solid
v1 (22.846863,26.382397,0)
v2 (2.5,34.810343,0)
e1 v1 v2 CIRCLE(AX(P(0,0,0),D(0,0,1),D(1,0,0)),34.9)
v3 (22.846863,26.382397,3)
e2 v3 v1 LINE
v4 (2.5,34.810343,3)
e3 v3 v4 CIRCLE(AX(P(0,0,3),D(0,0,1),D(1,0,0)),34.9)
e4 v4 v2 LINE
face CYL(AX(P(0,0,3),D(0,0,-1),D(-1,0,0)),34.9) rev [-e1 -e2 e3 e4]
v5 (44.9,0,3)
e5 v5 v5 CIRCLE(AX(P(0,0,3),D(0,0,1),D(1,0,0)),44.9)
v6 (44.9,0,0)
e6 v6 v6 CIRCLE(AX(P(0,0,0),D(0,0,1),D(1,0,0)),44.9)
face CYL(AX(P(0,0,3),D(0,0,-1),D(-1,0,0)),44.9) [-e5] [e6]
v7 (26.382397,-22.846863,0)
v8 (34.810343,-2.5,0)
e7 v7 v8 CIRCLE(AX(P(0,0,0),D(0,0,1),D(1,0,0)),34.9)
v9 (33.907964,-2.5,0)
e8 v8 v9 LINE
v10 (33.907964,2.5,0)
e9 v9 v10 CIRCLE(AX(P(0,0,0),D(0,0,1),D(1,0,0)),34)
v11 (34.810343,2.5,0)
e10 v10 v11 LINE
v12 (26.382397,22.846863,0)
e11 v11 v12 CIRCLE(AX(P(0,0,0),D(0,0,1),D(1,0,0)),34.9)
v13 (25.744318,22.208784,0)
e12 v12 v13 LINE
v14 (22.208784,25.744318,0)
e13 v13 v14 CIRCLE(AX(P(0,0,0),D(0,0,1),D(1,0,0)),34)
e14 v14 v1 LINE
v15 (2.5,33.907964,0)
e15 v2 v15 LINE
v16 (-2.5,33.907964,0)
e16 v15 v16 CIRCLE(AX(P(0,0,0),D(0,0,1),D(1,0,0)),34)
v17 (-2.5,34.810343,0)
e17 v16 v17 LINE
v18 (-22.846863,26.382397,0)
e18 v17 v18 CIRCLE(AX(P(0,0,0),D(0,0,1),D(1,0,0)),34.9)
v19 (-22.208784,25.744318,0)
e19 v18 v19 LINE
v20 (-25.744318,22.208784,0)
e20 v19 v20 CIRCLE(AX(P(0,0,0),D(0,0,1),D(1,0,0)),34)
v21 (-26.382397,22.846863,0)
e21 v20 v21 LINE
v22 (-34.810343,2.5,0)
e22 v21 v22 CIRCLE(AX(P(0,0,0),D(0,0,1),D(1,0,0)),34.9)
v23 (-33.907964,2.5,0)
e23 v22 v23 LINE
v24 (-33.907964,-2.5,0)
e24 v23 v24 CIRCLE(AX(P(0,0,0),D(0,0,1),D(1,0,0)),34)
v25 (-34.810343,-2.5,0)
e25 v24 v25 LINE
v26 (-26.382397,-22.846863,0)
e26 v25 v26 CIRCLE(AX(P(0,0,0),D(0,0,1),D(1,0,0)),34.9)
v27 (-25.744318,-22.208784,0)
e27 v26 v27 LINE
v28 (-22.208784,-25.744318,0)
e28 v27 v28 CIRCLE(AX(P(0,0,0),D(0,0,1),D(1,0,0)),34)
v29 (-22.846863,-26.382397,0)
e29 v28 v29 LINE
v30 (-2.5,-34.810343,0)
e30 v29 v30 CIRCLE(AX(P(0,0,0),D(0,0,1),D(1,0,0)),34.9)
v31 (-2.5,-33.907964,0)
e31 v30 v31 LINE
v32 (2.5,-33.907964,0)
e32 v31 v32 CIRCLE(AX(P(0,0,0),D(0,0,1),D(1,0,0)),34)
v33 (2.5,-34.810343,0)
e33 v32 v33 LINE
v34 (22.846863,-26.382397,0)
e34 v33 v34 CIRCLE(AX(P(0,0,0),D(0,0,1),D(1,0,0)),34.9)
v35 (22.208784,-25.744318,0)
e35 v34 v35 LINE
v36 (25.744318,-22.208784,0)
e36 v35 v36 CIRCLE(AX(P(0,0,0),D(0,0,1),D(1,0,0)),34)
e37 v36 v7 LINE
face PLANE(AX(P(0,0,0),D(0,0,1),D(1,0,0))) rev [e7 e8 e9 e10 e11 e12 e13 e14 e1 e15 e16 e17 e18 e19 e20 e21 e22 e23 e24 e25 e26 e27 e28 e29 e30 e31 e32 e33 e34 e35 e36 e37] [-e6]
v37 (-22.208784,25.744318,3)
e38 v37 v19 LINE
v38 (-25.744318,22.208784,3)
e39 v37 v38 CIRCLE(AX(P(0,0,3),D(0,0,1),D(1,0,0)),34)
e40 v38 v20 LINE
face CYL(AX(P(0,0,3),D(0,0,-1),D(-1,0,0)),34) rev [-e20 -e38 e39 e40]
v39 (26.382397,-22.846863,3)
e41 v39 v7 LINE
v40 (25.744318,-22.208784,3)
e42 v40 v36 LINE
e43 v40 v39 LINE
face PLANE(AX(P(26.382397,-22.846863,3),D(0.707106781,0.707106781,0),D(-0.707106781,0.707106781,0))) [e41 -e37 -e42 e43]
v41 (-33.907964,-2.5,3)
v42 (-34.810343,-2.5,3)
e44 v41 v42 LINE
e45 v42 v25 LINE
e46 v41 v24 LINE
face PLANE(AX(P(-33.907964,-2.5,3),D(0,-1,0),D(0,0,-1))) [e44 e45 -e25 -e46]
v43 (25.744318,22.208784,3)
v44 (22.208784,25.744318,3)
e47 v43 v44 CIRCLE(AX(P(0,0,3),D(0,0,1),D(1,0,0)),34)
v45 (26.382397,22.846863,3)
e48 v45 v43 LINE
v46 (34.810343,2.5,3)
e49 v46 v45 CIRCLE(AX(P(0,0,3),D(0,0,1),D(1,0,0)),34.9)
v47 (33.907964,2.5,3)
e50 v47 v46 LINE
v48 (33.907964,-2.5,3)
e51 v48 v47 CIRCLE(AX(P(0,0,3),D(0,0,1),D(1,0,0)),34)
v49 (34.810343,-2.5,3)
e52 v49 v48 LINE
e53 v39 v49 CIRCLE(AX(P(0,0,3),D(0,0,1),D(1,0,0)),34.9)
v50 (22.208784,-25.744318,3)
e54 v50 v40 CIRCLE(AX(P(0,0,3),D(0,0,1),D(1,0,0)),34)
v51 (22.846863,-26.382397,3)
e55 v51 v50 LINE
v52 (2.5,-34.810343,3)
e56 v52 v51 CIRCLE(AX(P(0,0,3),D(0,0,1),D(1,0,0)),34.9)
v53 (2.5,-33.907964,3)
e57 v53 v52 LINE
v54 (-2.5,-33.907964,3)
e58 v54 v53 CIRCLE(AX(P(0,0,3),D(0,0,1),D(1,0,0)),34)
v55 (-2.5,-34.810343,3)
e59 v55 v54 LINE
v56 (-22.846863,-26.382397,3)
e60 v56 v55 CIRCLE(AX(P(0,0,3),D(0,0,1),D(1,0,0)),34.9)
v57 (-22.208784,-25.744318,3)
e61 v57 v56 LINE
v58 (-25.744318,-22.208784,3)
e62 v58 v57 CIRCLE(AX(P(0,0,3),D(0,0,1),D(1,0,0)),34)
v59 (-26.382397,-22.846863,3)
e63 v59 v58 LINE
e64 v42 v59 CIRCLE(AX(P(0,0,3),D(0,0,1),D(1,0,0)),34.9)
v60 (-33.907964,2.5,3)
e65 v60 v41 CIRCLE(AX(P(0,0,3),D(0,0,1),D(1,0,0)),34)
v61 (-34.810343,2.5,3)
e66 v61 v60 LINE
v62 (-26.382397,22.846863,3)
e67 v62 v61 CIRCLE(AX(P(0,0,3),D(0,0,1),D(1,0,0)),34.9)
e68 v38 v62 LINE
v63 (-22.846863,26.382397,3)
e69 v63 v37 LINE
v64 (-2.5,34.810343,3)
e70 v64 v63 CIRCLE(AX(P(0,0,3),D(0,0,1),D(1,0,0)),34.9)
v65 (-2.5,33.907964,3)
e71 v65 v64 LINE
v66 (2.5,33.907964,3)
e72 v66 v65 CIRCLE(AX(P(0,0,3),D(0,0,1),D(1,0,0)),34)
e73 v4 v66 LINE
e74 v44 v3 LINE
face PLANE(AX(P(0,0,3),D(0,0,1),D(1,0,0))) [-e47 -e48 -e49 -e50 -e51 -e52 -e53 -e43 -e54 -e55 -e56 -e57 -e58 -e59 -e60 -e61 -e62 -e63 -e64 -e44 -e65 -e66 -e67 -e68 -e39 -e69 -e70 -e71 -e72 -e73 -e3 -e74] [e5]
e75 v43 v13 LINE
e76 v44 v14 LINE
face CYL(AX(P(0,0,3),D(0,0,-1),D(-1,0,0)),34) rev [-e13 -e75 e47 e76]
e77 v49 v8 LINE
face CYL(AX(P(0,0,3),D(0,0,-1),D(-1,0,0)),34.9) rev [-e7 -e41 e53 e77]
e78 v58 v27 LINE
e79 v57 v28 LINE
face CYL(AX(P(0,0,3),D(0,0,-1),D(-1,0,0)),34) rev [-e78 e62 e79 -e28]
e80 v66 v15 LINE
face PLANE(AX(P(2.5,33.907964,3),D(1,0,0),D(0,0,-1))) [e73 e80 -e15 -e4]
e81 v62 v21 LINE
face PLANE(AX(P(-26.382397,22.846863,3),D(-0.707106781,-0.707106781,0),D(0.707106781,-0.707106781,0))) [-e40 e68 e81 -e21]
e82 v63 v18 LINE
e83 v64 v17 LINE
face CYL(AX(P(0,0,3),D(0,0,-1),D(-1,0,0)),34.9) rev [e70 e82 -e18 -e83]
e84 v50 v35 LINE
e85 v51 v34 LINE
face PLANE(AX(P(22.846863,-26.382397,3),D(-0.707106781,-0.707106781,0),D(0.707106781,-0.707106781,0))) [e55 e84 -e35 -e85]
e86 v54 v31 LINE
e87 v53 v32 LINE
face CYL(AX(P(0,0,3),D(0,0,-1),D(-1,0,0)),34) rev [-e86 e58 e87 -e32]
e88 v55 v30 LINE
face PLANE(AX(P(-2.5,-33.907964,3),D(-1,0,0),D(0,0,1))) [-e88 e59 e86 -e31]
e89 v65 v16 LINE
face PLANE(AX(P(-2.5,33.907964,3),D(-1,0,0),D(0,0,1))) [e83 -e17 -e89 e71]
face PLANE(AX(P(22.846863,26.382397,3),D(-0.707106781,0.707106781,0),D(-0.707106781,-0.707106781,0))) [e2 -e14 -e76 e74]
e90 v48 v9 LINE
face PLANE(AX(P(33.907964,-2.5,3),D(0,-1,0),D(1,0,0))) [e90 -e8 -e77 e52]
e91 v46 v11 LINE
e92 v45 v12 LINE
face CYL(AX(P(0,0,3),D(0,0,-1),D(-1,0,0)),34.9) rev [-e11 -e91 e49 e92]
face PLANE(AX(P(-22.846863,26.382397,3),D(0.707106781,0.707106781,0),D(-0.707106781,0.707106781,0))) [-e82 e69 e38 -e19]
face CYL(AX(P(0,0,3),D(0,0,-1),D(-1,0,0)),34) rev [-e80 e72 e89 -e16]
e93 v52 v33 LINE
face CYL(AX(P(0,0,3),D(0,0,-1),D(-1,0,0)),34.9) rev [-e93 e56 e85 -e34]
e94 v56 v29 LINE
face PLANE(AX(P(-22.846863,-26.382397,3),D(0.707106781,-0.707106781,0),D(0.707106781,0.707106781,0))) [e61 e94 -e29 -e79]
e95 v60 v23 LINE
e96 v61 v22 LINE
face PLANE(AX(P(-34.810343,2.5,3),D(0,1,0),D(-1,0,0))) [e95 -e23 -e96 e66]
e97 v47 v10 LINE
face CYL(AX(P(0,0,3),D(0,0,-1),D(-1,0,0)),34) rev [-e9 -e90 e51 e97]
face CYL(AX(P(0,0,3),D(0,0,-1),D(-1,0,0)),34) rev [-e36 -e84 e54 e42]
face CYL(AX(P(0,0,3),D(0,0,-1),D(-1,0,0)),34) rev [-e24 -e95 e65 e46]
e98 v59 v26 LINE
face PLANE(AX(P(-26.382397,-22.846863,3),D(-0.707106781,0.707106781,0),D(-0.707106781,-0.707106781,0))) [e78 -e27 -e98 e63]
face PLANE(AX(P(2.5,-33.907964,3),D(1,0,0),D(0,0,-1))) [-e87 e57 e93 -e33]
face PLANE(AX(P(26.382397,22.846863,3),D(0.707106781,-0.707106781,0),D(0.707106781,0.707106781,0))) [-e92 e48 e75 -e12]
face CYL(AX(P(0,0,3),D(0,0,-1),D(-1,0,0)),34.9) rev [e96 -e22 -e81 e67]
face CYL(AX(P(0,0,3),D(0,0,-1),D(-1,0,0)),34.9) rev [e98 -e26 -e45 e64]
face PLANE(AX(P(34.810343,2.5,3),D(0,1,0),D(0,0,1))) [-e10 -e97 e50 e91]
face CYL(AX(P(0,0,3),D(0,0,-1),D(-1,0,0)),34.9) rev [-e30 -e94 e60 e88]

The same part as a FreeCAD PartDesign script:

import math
import FreeCAD as App
import Part
import Sketcher
from FreeCAD import Vector

doc = App.newDocument("Part")
body = doc.addObject("PartDesign::Body", "Body")

sketch1 = body.newObject("Sketcher::SketchObject", "Sketch")
sketch1.AttachmentSupport = (doc.getObject("XY_Plane"), [""])
sketch1.MapMode = "FlatFace"
sketch1.addGeometry(Part.Circle(Vector(0, 0, 0), Vector(0, 0, 1), 44.9), False)
sketch1.addGeometry(Part.LineSegment(Vector(-2.5, 34.810343, 0), Vector(-2.5, 33.907964, 0)), False)
sketch1.addGeometry(Part.ArcOfCircle(Part.Circle(Vector(0, 0, 0), Vector(0, 0, 1), 34), math.radians(85.78327), math.radians(94.21673)), False)
sketch1.addGeometry(Part.LineSegment(Vector(2.5, 33.907964, 0), Vector(2.5, 34.810343, 0)), False)
sketch1.addGeometry(Part.ArcOfCircle(Part.Circle(Vector(0, 0, 0), Vector(0, 0, 1), 34.9), math.radians(49.1078), math.radians(85.8922)), False)
sketch1.addGeometry(Part.LineSegment(Vector(22.846863, 26.382397, 0), Vector(22.208784, 25.744318, 0)), False)
sketch1.addGeometry(Part.ArcOfCircle(Part.Circle(Vector(0, 0, 0), Vector(0, 0, 1), 34), math.radians(40.78327), math.radians(49.21673)), False)
sketch1.addGeometry(Part.LineSegment(Vector(25.744318, 22.208784, 0), Vector(26.382397, 22.846863, 0)), False)
sketch1.addGeometry(Part.ArcOfCircle(Part.Circle(Vector(0, 0, 0), Vector(0, 0, 1), 34.9), math.radians(4.1078), math.radians(40.8922)), False)
sketch1.addGeometry(Part.LineSegment(Vector(34.810343, 2.5, 0), Vector(33.907964, 2.5, 0)), False)
sketch1.addGeometry(Part.ArcOfCircle(Part.Circle(Vector(0, 0, 0), Vector(0, 0, 1), 34), math.radians(-4.21673), math.radians(4.21673)), False)
sketch1.addGeometry(Part.LineSegment(Vector(33.907964, -2.5, 0), Vector(34.810343, -2.5, 0)), False)
sketch1.addGeometry(Part.ArcOfCircle(Part.Circle(Vector(0, 0, 0), Vector(0, 0, 1), 34.9), math.radians(-40.8922), math.radians(-4.1078)), False)
sketch1.addGeometry(Part.LineSegment(Vector(26.382397, -22.846863, 0), Vector(25.744318, -22.208784, 0)), False)
sketch1.addGeometry(Part.ArcOfCircle(Part.Circle(Vector(0, 0, 0), Vector(0, 0, 1), 34), math.radians(-49.21673), math.radians(-40.78327)), False)
sketch1.addGeometry(Part.LineSegment(Vector(22.208784, -25.744318, 0), Vector(22.846863, -26.382397, 0)), False)
sketch1.addGeometry(Part.ArcOfCircle(Part.Circle(Vector(0, 0, 0), Vector(0, 0, 1), 34.9), math.radians(-85.8922), math.radians(-49.1078)), False)
sketch1.addGeometry(Part.LineSegment(Vector(2.5, -34.810343, 0), Vector(2.5, -33.907964, 0)), False)
sketch1.addGeometry(Part.ArcOfCircle(Part.Circle(Vector(0, 0, 0), Vector(0, 0, 1), 34), math.radians(-94.21673), math.radians(-85.78327)), False)
sketch1.addGeometry(Part.LineSegment(Vector(-2.5, -33.907964, 0), Vector(-2.5, -34.810343, 0)), False)
sketch1.addGeometry(Part.ArcOfCircle(Part.Circle(Vector(0, 0, 0), Vector(0, 0, 1), 34.9), math.radians(-130.8922), math.radians(-94.1078)), False)
sketch1.addGeometry(Part.LineSegment(Vector(-22.846863, -26.382397, 0), Vector(-22.208784, -25.744318, 0)), False)
sketch1.addGeometry(Part.ArcOfCircle(Part.Circle(Vector(0, 0, 0), Vector(0, 0, 1), 34), math.radians(-139.21673), math.radians(-130.78327)), False)
sketch1.addGeometry(Part.LineSegment(Vector(-25.744318, -22.208784, 0), Vector(-26.382397, -22.846863, 0)), False)
sketch1.addGeometry(Part.ArcOfCircle(Part.Circle(Vector(0, 0, 0), Vector(0, 0, 1), 34.9), math.radians(-175.8922), math.radians(-139.1078)), False)
sketch1.addGeometry(Part.LineSegment(Vector(-34.810343, -2.5, 0), Vector(-33.907964, -2.5, 0)), False)
sketch1.addGeometry(Part.ArcOfCircle(Part.Circle(Vector(0, 0, 0), Vector(0, 0, 1), 34), math.radians(175.78327), math.radians(184.21673)), False)
sketch1.addGeometry(Part.LineSegment(Vector(-33.907964, 2.5, 0), Vector(-34.810343, 2.5, 0)), False)
sketch1.addGeometry(Part.ArcOfCircle(Part.Circle(Vector(0, 0, 0), Vector(0, 0, 1), 34.9), math.radians(139.1078), math.radians(175.8922)), False)
sketch1.addGeometry(Part.LineSegment(Vector(-26.382397, 22.846863, 0), Vector(-25.744318, 22.208784, 0)), False)
sketch1.addGeometry(Part.ArcOfCircle(Part.Circle(Vector(0, 0, 0), Vector(0, 0, 1), 34), math.radians(130.78327), math.radians(139.21673)), False)
sketch1.addGeometry(Part.LineSegment(Vector(-22.208784, 25.744318, 0), Vector(-22.846863, 26.382397, 0)), False)
sketch1.addGeometry(Part.ArcOfCircle(Part.Circle(Vector(0, 0, 0), Vector(0, 0, 1), 34.9), math.radians(94.1078), math.radians(130.8922)), False)
sketch1.addConstraint(Sketcher.Constraint("Coincident", 1, 2, 2, 2))
sketch1.addConstraint(Sketcher.Constraint("Coincident", 2, 1, 3, 1))
sketch1.addConstraint(Sketcher.Constraint("Coincident", 3, 2, 4, 2))
sketch1.addConstraint(Sketcher.Constraint("Coincident", 4, 1, 5, 1))
sketch1.addConstraint(Sketcher.Constraint("Coincident", 5, 2, 6, 2))
sketch1.addConstraint(Sketcher.Constraint("Coincident", 6, 1, 7, 1))
sketch1.addConstraint(Sketcher.Constraint("Coincident", 7, 2, 8, 2))
sketch1.addConstraint(Sketcher.Constraint("Coincident", 8, 1, 9, 1))
sketch1.addConstraint(Sketcher.Constraint("Coincident", 9, 2, 10, 2))
sketch1.addConstraint(Sketcher.Constraint("Coincident", 10, 1, 11, 1))
sketch1.addConstraint(Sketcher.Constraint("Coincident", 11, 2, 12, 2))
sketch1.addConstraint(Sketcher.Constraint("Coincident", 12, 1, 13, 1))
sketch1.addConstraint(Sketcher.Constraint("Coincident", 13, 2, 14, 2))
sketch1.addConstraint(Sketcher.Constraint("Coincident", 14, 1, 15, 1))
sketch1.addConstraint(Sketcher.Constraint("Coincident", 15, 2, 16, 2))
sketch1.addConstraint(Sketcher.Constraint("Coincident", 16, 1, 17, 1))
sketch1.addConstraint(Sketcher.Constraint("Coincident", 17, 2, 18, 2))
sketch1.addConstraint(Sketcher.Constraint("Coincident", 18, 1, 19, 1))
sketch1.addConstraint(Sketcher.Constraint("Coincident", 19, 2, 20, 2))
sketch1.addConstraint(Sketcher.Constraint("Coincident", 20, 1, 21, 1))
sketch1.addConstraint(Sketcher.Constraint("Coincident", 21, 2, 22, 2))
sketch1.addConstraint(Sketcher.Constraint("Coincident", 22, 1, 23, 1))
sketch1.addConstraint(Sketcher.Constraint("Coincident", 23, 2, 24, 2))
sketch1.addConstraint(Sketcher.Constraint("Coincident", 24, 1, 25, 1))
sketch1.addConstraint(Sketcher.Constraint("Coincident", 25, 2, 26, 2))
sketch1.addConstraint(Sketcher.Constraint("Coincident", 26, 1, 27, 1))
sketch1.addConstraint(Sketcher.Constraint("Coincident", 27, 2, 28, 2))
sketch1.addConstraint(Sketcher.Constraint("Coincident", 28, 1, 29, 1))
sketch1.addConstraint(Sketcher.Constraint("Coincident", 29, 2, 30, 2))
sketch1.addConstraint(Sketcher.Constraint("Coincident", 30, 1, 31, 1))
sketch1.addConstraint(Sketcher.Constraint("Coincident", 31, 2, 32, 2))
sketch1.addConstraint(Sketcher.Constraint("Coincident", 32, 1, 1, 1))
sketch1.addConstraint(Sketcher.Constraint("Vertical", 1))
sketch1.addConstraint(Sketcher.Constraint("Vertical", 3))
sketch1.addConstraint(Sketcher.Constraint("Horizontal", 9))
sketch1.addConstraint(Sketcher.Constraint("Horizontal", 11))
sketch1.addConstraint(Sketcher.Constraint("Vertical", 17))
sketch1.addConstraint(Sketcher.Constraint("Vertical", 19))
sketch1.addConstraint(Sketcher.Constraint("Horizontal", 25))
sketch1.addConstraint(Sketcher.Constraint("Horizontal", 27))
sketch1.addConstraint(Sketcher.Constraint("Coincident", 0, 3, -1, 1))
sketch1.addConstraint(Sketcher.Constraint("Coincident", 2, 3, -1, 1))
sketch1.addConstraint(Sketcher.Constraint("Coincident", 4, 3, -1, 1))
sketch1.addConstraint(Sketcher.Constraint("Coincident", 6, 3, -1, 1))
sketch1.addConstraint(Sketcher.Constraint("Coincident", 8, 3, -1, 1))
sketch1.addConstraint(Sketcher.Constraint("Coincident", 10, 3, -1, 1))
sketch1.addConstraint(Sketcher.Constraint("Coincident", 12, 3, -1, 1))
sketch1.addConstraint(Sketcher.Constraint("Coincident", 14, 3, -1, 1))
sketch1.addConstraint(Sketcher.Constraint("Coincident", 16, 3, -1, 1))
sketch1.addConstraint(Sketcher.Constraint("Coincident", 18, 3, -1, 1))
sketch1.addConstraint(Sketcher.Constraint("Coincident", 20, 3, -1, 1))
sketch1.addConstraint(Sketcher.Constraint("Coincident", 22, 3, -1, 1))
sketch1.addConstraint(Sketcher.Constraint("Coincident", 24, 3, -1, 1))
sketch1.addConstraint(Sketcher.Constraint("Coincident", 26, 3, -1, 1))
sketch1.addConstraint(Sketcher.Constraint("Coincident", 28, 3, -1, 1))
sketch1.addConstraint(Sketcher.Constraint("Coincident", 30, 3, -1, 1))
sketch1.addConstraint(Sketcher.Constraint("Coincident", 32, 3, -1, 1))
sketch1.addConstraint(Sketcher.Constraint("Equal", 2, 6))
sketch1.addConstraint(Sketcher.Constraint("Equal", 4, 8))
sketch1.addConstraint(Sketcher.Constraint("Equal", 6, 10))
sketch1.addConstraint(Sketcher.Constraint("Equal", 8, 12))
sketch1.addConstraint(Sketcher.Constraint("Equal", 10, 14))
sketch1.addConstraint(Sketcher.Constraint("Equal", 12, 16))
sketch1.addConstraint(Sketcher.Constraint("Equal", 14, 18))
sketch1.addConstraint(Sketcher.Constraint("Equal", 16, 20))
sketch1.addConstraint(Sketcher.Constraint("Equal", 18, 22))
sketch1.addConstraint(Sketcher.Constraint("Equal", 20, 24))
sketch1.addConstraint(Sketcher.Constraint("Equal", 22, 26))
sketch1.addConstraint(Sketcher.Constraint("Equal", 24, 28))
sketch1.addConstraint(Sketcher.Constraint("Equal", 26, 30))
sketch1.addConstraint(Sketcher.Constraint("Equal", 28, 32))
sketch1.addConstraint(Sketcher.Constraint("Parallel", 5, 7))
sketch1.addConstraint(Sketcher.Constraint("Perpendicular", 7, 13))
sketch1.addConstraint(Sketcher.Constraint("Parallel", 13, 15))
sketch1.addConstraint(Sketcher.Constraint("Perpendicular", 15, 21))
sketch1.addConstraint(Sketcher.Constraint("Parallel", 21, 23))
sketch1.addConstraint(Sketcher.Constraint("Perpendicular", 23, 29))
sketch1.addConstraint(Sketcher.Constraint("Parallel", 29, 31))
sketch1.addConstraint(Sketcher.Constraint("Horizontal", 1, 2, 2, 1))
sketch1.addConstraint(Sketcher.Constraint("Horizontal", 17, 2, 18, 1))
sketch1.addConstraint(Sketcher.Constraint("Horizontal", 15, 2, 20, 1))
sketch1.addConstraint(Sketcher.Constraint("Horizontal", 14, 1, 21, 2))
sketch1.addConstraint(Sketcher.Constraint("Horizontal", 13, 2, 22, 1))
sketch1.addConstraint(Sketcher.Constraint("Horizontal", 11, 2, 24, 1))
sketch1.addConstraint(Sketcher.Constraint("Horizontal", 9, 2, 26, 1))
sketch1.addConstraint(Sketcher.Constraint("Horizontal", 7, 2, 28, 1))
sketch1.addConstraint(Sketcher.Constraint("Horizontal", 5, 2, 30, 1))
sketch1.addConstraint(Sketcher.Constraint("Vertical", 9, 2, 10, 1))
sketch1.addConstraint(Sketcher.Constraint("Vertical", 7, 2, 12, 1))
sketch1.addConstraint(Sketcher.Constraint("Vertical", 5, 2, 14, 1))
sketch1.addConstraint(Sketcher.Constraint("Vertical", 3, 2, 16, 1))
sketch1.addConstraint(Sketcher.Constraint("Radius", 2, 34.0))
sketch1.addConstraint(Sketcher.Constraint("Diameter", 0, 89.8))
sketch1.addConstraint(Sketcher.Constraint("Radius", 4, 34.9))
sketch1.addConstraint(Sketcher.Constraint("DistanceX", 1, 2, 2, 1, 5.0))
sketch1.addConstraint(Sketcher.Constraint("DistanceY", 10, 1, 9, 2, 5.0))
sketch1.addConstraint(Sketcher.Constraint("DistanceY", 7, 2, 2, 1, 11.061101))
sketch1.addConstraint(Sketcher.Constraint("DistanceX", 4, 1, 9, 2, 11.061101))
pad1 = body.newObject("PartDesign::Pad", "Pad")
pad1.Profile = sketch1
pad1.Length = 3

doc.recompute()
